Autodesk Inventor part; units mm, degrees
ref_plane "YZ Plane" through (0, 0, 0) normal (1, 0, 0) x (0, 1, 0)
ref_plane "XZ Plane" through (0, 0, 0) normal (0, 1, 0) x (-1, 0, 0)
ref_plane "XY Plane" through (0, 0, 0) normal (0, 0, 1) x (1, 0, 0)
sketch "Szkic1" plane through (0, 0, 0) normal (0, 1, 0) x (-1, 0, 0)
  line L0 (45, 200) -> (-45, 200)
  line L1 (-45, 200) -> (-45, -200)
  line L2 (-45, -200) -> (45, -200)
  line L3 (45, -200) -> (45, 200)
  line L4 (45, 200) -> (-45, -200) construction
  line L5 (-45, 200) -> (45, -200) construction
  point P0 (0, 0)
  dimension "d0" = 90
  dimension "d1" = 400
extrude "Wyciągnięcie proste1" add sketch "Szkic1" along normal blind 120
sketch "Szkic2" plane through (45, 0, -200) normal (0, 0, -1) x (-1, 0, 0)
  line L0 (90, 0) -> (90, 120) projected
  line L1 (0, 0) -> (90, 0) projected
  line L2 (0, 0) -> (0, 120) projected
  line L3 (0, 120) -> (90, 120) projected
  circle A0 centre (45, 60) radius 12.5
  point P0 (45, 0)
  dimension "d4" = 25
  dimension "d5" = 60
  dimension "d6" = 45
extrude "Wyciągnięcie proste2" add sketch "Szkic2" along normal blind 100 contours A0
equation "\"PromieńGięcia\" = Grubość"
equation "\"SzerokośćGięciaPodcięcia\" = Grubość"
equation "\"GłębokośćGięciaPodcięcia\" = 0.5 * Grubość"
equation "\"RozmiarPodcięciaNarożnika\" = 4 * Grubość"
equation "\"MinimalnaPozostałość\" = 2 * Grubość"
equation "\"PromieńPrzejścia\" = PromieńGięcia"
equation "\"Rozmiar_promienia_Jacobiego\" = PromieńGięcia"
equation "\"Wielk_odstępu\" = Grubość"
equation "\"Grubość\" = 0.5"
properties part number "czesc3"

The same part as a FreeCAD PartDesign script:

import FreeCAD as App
import Part
import Sketcher
from FreeCAD import Vector
Q = App.Units.Quantity


def add_polygon(sketch, points):
    """Adds a closed chain of lines whose ends are joined by coincident constraints."""
    first, n = sketch.GeometryCount, len(points)
    for a, b in zip(points, points[1:] + points[:1]):
        sketch.addGeometry(Part.LineSegment(App.Vector(*a, 0), App.Vector(*b, 0)), False)
    for i in range(n):
        sketch.addConstraint(Sketcher.Constraint("Coincident", first + i, 2, first + (i + 1) % n, 1))

doc = App.newDocument("Part")
params = doc.addObject("Spreadsheet::Sheet", "Params")
for row, (alias, value) in enumerate([
    ("sketch1_width", "90 mm"),
    ("sketch1_height", "400 mm"),
    ("pad1_length", "120 mm"),
    ("sketch2_diameter", "25 mm"),
    ("pad2_length", "100 mm"),
], start=1):
    params.set(f"A{row}", alias)
    params.set(f"B{row}", "=" + value)
    params.setAlias(f"B{row}", alias)

body = doc.addObject("PartDesign::Body", "Body")

# Sketch on XZ plane
sketch1 = body.newObject("Sketcher::SketchObject", "Sketch")
sketch1.AttachmentSupport = (doc.getObject("XZ_Plane"), [""])
sketch1.MapMode = "FlatFace"
add_polygon(sketch1, [(-45, -200), (-45, 200), (45, 200), (45, -200)])  # lines 0-3
sketch1.addConstraint([
    Sketcher.Constraint("Vertical", 0),
    Sketcher.Constraint("Horizontal", 1),
    Sketcher.Constraint("Vertical", 2),
    Sketcher.Constraint("Horizontal", 3),
    Sketcher.Constraint("Symmetric", 0, 2, 2, 2, -1, 1),
    Sketcher.Constraint("DistanceX", 1, 1, 1, 2, Q("90 mm")),
    Sketcher.Constraint("DistanceY", 0, 1, 0, 2, Q("400 mm")),
])
sketch1.setExpression("Constraints[9]", "Params.sketch1_width")
sketch1.setExpression("Constraints[10]", "Params.sketch1_height")
pad1 = body.newObject("PartDesign::Pad", "Pad")
pad1.Profile = sketch1
pad1.setExpression("Length", "Params.pad1_length")
pad1.Reversed = True

# Sketch on XY plane
sketch2 = body.newObject("Sketcher::SketchObject", "Sketch001")
sketch2.AttachmentSupport = (doc.getObject("XY_Plane"), [""])
sketch2.MapMode = "FlatFace"
sketch2.AttachmentOffset = App.Placement(Vector(0, 0, -200), App.Rotation())
sketch2.addGeometry(Part.Circle(Vector(0, 60, 0), Vector(0, 0, 1), 12.5), False)
sketch2.addConstraint([
    Sketcher.Constraint("PointOnObject", 0, 3, -2),
    Sketcher.Constraint("Diameter", 0, Q("25 mm")),
    Sketcher.Constraint("DistanceY", -1, 1, 0, 3, Q("60 mm")),
])
sketch2.setExpression("Constraints[1]", "Params.sketch2_diameter")
pad2 = body.newObject("PartDesign::Pad", "Pad001")
pad2.Profile = sketch2
pad2.setExpression("Length", "Params.pad2_length")
pad2.Reversed = True

doc.recompute()
